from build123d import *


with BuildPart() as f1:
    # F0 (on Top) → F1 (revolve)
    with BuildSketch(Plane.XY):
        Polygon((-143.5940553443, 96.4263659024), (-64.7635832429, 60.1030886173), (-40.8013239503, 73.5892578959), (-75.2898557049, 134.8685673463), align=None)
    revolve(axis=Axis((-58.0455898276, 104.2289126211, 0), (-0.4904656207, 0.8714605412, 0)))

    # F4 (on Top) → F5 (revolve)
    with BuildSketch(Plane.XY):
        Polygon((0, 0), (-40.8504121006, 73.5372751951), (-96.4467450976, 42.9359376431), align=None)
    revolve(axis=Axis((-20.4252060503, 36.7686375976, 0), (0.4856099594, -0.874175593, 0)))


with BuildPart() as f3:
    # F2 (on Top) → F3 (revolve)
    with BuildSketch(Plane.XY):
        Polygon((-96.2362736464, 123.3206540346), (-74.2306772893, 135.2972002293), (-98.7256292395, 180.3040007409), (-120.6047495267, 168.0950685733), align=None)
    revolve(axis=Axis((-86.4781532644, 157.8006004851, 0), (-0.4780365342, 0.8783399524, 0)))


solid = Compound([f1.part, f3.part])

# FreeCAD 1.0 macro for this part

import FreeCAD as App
import Part
import Sketcher

V = App.Vector
Q = App.Units.Quantity


def add_polygon(sketch, points):
    """Adds a closed chain of lines whose ends are joined by coincident constraints."""
    first, n = sketch.GeometryCount, len(points)
    for a, b in zip(points, points[1:] + points[:1]):
        sketch.addGeometry(Part.LineSegment(App.Vector(*a, 0), App.Vector(*b, 0)), False)
    for i in range(n):
        sketch.addConstraint(Sketcher.Constraint("Coincident", first + i, 2, first + (i + 1) % n, 1))

doc = App.newDocument("Part")
body = doc.addObject("PartDesign::Body", "Body")

# Sketch on XY plane
sketch1 = doc.addObject("Sketcher::SketchObject", "Sketch")
body.addObject(sketch1)
sketch1.AttachmentSupport = (doc.XY_Plane, [""])
sketch1.MapMode = "FlatFace"
add_polygon(sketch1, [(-144, 96), (-65, 60), (-41, 74), (-75, 135)])  # lines 0-3
sketch1.addGeometry(Part.LineSegment(V(-41, 74, 0), V(-75, 135, 0)), True)  # axis
sketch1.addConstraint(Sketcher.Constraint("Coincident", 4, 1, 1, 2))
sketch1.addConstraint(Sketcher.Constraint("Coincident", 4, 2, 2, 2))
sketch1.addConstraint(Sketcher.Constraint("Perpendicular", 1, 2))
sketch1.addConstraint(Sketcher.Constraint("Perpendicular", 2, 3))
sketch1.addConstraint(Sketcher.Constraint("DistanceX", 3, 2, 2, 2, Q("68.3042 mm")))
sketch1.addConstraint(Sketcher.Constraint("DistanceY", 3, 2, 2, 2, Q("38.442201 mm")))
sketch1.addConstraint(Sketcher.Constraint("Distance", 0, Q("86.79645 mm")))
sketch1.addConstraint(Sketcher.Constraint("Distance", 2, Q("70.317939 mm")))
sketch1.addConstraint(Sketcher.Constraint("DistanceY", -1, 1, 0, 2, Q("60.103089 mm")))
sketch1.addConstraint(Sketcher.Constraint("DistanceX", 0, 2, -1, 1, Q("64.763583 mm")))
revolution = doc.addObject("PartDesign::Revolution", "Revolution")
body.addObject(revolution)
revolution.Profile = sketch1
revolution.ReferenceAxis = (sketch1, ["Axis0"])
revolution.Angle = 360

# Sketch on XY plane
sketch2 = doc.addObject("Sketcher::SketchObject", "Sketch001")
body.addObject(sketch2)
sketch2.AttachmentSupport = (doc.XY_Plane, [""])
sketch2.MapMode = "FlatFace"
add_polygon(sketch2, [(0, 0), (-41, 74), (-96, 43)])  # lines 0-2
sketch2.addGeometry(Part.LineSegment(V(-41, 74, 0), V(0, 0, 0)), True)  # axis
sketch2.addConstraint(Sketcher.Constraint("Coincident", 2, 2, -1, 1))
sketch2.addConstraint(Sketcher.Constraint("Coincident", 3, 2, -1, 1))
sketch2.addConstraint(Sketcher.Constraint("Parallel", 0, 3))
sketch2.addConstraint(Sketcher.Constraint("Distance", 0, Q("84.121858 mm")))
sketch2.addConstraint(Sketcher.Constraint("Distance", 3, Q("84.369049 mm")))
sketch2.addConstraint(Sketcher.Constraint("DistanceX", 3, 1, -1, 1, Q("40.97045 mm")))
sketch2.addConstraint(Sketcher.Constraint("Distance", 1, Q("63.461753 mm")))
sketch2.addConstraint(Sketcher.Constraint("Distance", 2, Q("105.572105 mm")))
revolution2 = doc.addObject("PartDesign::Revolution", "Revolution001")
body.addObject(revolution2)
revolution2.Profile = sketch2
revolution2.ReferenceAxis = (sketch2, ["Axis0"])
revolution2.Angle = 360
body2 = doc.addObject("PartDesign::Body", "Body001")

# Sketch on XY plane
sketch3 = doc.addObject("Sketcher::SketchObject", "Sketch002")
body2.addObject(sketch3)
sketch3.AttachmentSupport = (doc.getObject("XY_Plane001"), [""])
sketch3.MapMode = "FlatFace"
add_polygon(sketch3, [(-96, 123), (-74, 135), (-99, 180), (-121, 168)])  # lines 0-3
sketch3.addGeometry(Part.LineSegment(V(-74, 135, 0), V(-99, 180, 0)), True)  # axis
sketch3.addConstraint(Sketcher.Constraint("Coincident", 4, 1, 0, 2))
sketch3.addConstraint(Sketcher.Constraint("Coincident", 4, 2, 1, 2))
sketch3.addConstraint(Sketcher.Constraint("Perpendicular", 0, 1))
sketch3.addConstraint(Sketcher.Constraint("Parallel", 1, 3))
sketch3.addConstraint(Sketcher.Constraint("DistanceY", -1, 1, 1, 2, Q("180.304001 mm")))
sketch3.addConstraint(Sketcher.Constraint("DistanceY", -1, 1, 0, 2, Q("135.2972 mm")))
sketch3.addConstraint(Sketcher.Constraint("Distance", 0, Q("25.053621 mm")))
sketch3.addConstraint(Sketcher.Constraint("Distance", 2, Q("25.055018 mm")))
sketch3.addConstraint(Sketcher.Constraint("Distance", 3, Q("50.976179 mm")))
sketch3.addConstraint(Sketcher.Constraint("DistanceX", 1, 2, -1, 1, Q("98.725629 mm")))
revolution3 = doc.addObject("PartDesign::Revolution", "Revolution002")
body2.addObject(revolution3)
revolution3.Profile = sketch3
revolution3.ReferenceAxis = (sketch3, ["Axis0"])
revolution3.Angle = 360

doc.recompute()
